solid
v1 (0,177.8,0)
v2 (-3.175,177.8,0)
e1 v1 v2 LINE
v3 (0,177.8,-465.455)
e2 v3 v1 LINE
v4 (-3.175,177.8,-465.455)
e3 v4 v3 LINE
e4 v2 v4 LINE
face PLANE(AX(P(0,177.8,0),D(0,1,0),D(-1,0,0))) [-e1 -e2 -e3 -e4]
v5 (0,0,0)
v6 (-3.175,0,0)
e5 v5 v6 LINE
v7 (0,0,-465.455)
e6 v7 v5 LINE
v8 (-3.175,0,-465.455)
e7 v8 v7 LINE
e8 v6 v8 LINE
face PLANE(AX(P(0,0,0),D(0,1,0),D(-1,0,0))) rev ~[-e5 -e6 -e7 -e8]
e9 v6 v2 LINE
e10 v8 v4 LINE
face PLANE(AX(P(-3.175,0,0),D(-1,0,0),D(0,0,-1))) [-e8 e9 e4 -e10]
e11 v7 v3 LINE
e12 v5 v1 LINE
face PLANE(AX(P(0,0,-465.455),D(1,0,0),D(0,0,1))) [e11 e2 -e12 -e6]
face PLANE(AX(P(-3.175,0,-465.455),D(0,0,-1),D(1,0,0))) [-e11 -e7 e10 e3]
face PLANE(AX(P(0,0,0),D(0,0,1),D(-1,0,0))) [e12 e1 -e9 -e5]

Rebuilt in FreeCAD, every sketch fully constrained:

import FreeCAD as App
import Part
import Sketcher
Q = App.Units.Quantity

doc = App.newDocument("Part")
body = doc.addObject("PartDesign::Body", "Body")

# Sketch on XZ plane
sketch1 = body.newObject("Sketcher::SketchObject", "Sketch")
sketch1.AttachmentSupport = (doc.getObject("XZ_Plane"), [""])
sketch1.MapMode = "FlatFace"
sketch1.addGeometry(Part.LineSegment(App.Vector(-3.175, 0, 0), App.Vector(0, 0, 0)), False)
sketch1.addGeometry(Part.LineSegment(App.Vector(0, 0, 0), App.Vector(0, -465.455, 0)), False)
sketch1.addGeometry(Part.LineSegment(App.Vector(0, -465.455, 0), App.Vector(-3.175, -465.455, 0)), False)
sketch1.addGeometry(Part.LineSegment(App.Vector(-3.175, -465.455, 0), App.Vector(-3.175, 0, 0)), False)
sketch1.addConstraint(Sketcher.Constraint("Coincident", 0, 2, 1, 1))
sketch1.addConstraint(Sketcher.Constraint("Coincident", 1, 2, 2, 1))
sketch1.addConstraint(Sketcher.Constraint("Coincident", 2, 2, 3, 1))
sketch1.addConstraint(Sketcher.Constraint("Coincident", 3, 2, 0, 1))
sketch1.addConstraint(Sketcher.Constraint("Horizontal", 0))
sketch1.addConstraint(Sketcher.Constraint("Vertical", 1))
sketch1.addConstraint(Sketcher.Constraint("Horizontal", 2))
sketch1.addConstraint(Sketcher.Constraint("Vertical", 3))
sketch1.addConstraint(Sketcher.Constraint("Coincident", 0, 2, -1, 1))
sketch1.addConstraint(Sketcher.Constraint("DistanceX", 0, 1, 0, 2, Q("0.125 in")))
sketch1.addConstraint(Sketcher.Constraint("DistanceY", 1, 2, 1, 1, Q("18.325 in")))
pad1 = body.newObject("PartDesign::Pad", "Pad")
pad1.Profile = sketch1
pad1.Length = Q("7 in")
pad1.Reversed = True

doc.recompute()
